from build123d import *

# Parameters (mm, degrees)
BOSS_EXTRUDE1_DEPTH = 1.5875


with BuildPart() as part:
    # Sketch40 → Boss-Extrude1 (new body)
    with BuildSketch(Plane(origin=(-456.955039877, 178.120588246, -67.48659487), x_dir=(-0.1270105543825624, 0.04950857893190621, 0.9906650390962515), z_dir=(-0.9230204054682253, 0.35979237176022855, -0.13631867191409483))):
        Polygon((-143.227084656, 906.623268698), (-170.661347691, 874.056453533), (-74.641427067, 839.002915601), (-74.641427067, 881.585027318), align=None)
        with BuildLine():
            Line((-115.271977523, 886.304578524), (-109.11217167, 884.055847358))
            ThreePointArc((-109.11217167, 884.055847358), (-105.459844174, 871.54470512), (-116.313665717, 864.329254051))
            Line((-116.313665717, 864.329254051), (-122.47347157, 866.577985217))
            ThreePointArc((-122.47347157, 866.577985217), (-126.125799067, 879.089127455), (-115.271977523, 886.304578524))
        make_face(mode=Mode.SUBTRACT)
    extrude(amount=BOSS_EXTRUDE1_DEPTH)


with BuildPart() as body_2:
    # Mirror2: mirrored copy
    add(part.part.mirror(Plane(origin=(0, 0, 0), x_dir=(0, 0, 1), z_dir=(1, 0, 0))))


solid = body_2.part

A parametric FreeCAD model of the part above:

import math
import FreeCAD as App
import Part
import Sketcher

V = App.Vector
Q = App.Units.Quantity

doc = App.newDocument("Part")
body = doc.addObject("PartDesign::Body", "Body")

# Sketch on an angled plane
sketch1 = doc.addObject("Sketcher::SketchObject", "Sketch")
body.addObject(sketch1)
sketch1.Placement = App.Placement(V(-456.95504, 178.120588, -67.486595), App.Rotation(V(-0.127010554, 0.049508579, 0.990665039), V(0.363182668, 0.931717956, 0), V(-0.923020405, 0.359792372, -0.136318672), "ZXY"))
sketch1.addGeometry([
    Part.LineSegment(V(-143.227085, 906.623268, 0), V(-170.661348, 874.056453, 0)),  # 0
    Part.LineSegment(V(-170.661348, 874.056453, 0), V(-74.641427, 839.002915, 0)),  # 1
    Part.LineSegment(V(-74.641427, 839.002915, 0), V(-74.641427, 881.585026, 0)),  # 2
    Part.LineSegment(V(-74.641427, 881.585026, 0), V(-143.227085, 906.623268, 0)),  # 3
    Part.ArcOfCircle(Part.Circle(V(-115.792822, 875.316915, 0), V(0, 0, 1), 11), math.radians(87.286061), math.radians(232.603175)),  # 4
    Part.LineSegment(V(-115.271977, 886.304578, 0), V(-109.112172, 884.055847, 0)),  # 5
    Part.ArcOfCircle(Part.Circle(V(-115.792822, 875.316915, 0), V(0, 0, 1), 11), math.radians(-92.713939), math.radians(52.603175)),  # 6
    Part.LineSegment(V(-116.313666, 864.329253, 0), V(-122.473472, 866.577984, 0)),  # 7
], False)
sketch1.addConstraint([
    Sketcher.Constraint("Coincident", 0, 2, 1, 1),
    Sketcher.Constraint("Coincident", 1, 2, 2, 1),
    Sketcher.Constraint("Coincident", 2, 2, 3, 1),
    Sketcher.Constraint("Coincident", 3, 2, 0, 1),
    Sketcher.Constraint("Coincident", 4, 1, 5, 1),
    Sketcher.Constraint("Coincident", 5, 2, 6, 2),
    Sketcher.Constraint("Coincident", 6, 1, 7, 1),
    Sketcher.Constraint("Coincident", 7, 2, 4, 2),
    Sketcher.Constraint("Vertical", 2),
    Sketcher.Constraint("Coincident", 6, 3, 4, 3),
    Sketcher.Constraint("Equal", 4, 6),
    Sketcher.Constraint("Parallel", 1, 3),
    Sketcher.Constraint("Parallel", 3, 5),
    Sketcher.Constraint("Parallel", 5, 7),
    Sketcher.Constraint("Equal", 5, 7),
    Sketcher.Constraint("Radius", 4, Q("11 mm")),
    Sketcher.Constraint("DistanceY", 1, 2, 4, 3, Q("36.314001 mm")),
    Sketcher.Constraint("DistanceY", 2, 1, 2, 2, Q("42.582112 mm")),
    Sketcher.Constraint("DistanceX", 7, 2, 5, 2, Q("13.3613 mm")),
    Sketcher.Constraint("Distance", 0, Q("42.582112 mm")),
    Sketcher.Constraint("Distance", 5, Q("6.557439 mm")),
    Sketcher.Constraint("DistanceX", 4, 3, -1, 1, Q("115.792822 mm")),
    Sketcher.Constraint("DistanceX", 0, 2, 1, 2, Q("96.019921 mm")),
    Sketcher.Constraint("DistanceX", 4, 1, 2, 2, Q("40.63055 mm")),
    Sketcher.Constraint("DistanceY", -1, 1, 4, 3, Q("875.316915 mm")),
])
pad1 = doc.addObject("PartDesign::Pad", "Pad")
body.addObject(pad1)
pad1.Profile = sketch1
pad1.Length = 1.5875
body2 = doc.addObject("PartDesign::Body", "Body001")
doc.recompute()

mirroring = doc.addObject("Part::Mirroring", "Mirroring")
mirroring.Source = body
mirroring.Base = V(0, 0, 0)
mirroring.Normal = V(1, 0, 0)
body2.BaseFeature = mirroring
doc.recompute()
body.Visibility = False
mirroring.Visibility = False

doc.recompute()
